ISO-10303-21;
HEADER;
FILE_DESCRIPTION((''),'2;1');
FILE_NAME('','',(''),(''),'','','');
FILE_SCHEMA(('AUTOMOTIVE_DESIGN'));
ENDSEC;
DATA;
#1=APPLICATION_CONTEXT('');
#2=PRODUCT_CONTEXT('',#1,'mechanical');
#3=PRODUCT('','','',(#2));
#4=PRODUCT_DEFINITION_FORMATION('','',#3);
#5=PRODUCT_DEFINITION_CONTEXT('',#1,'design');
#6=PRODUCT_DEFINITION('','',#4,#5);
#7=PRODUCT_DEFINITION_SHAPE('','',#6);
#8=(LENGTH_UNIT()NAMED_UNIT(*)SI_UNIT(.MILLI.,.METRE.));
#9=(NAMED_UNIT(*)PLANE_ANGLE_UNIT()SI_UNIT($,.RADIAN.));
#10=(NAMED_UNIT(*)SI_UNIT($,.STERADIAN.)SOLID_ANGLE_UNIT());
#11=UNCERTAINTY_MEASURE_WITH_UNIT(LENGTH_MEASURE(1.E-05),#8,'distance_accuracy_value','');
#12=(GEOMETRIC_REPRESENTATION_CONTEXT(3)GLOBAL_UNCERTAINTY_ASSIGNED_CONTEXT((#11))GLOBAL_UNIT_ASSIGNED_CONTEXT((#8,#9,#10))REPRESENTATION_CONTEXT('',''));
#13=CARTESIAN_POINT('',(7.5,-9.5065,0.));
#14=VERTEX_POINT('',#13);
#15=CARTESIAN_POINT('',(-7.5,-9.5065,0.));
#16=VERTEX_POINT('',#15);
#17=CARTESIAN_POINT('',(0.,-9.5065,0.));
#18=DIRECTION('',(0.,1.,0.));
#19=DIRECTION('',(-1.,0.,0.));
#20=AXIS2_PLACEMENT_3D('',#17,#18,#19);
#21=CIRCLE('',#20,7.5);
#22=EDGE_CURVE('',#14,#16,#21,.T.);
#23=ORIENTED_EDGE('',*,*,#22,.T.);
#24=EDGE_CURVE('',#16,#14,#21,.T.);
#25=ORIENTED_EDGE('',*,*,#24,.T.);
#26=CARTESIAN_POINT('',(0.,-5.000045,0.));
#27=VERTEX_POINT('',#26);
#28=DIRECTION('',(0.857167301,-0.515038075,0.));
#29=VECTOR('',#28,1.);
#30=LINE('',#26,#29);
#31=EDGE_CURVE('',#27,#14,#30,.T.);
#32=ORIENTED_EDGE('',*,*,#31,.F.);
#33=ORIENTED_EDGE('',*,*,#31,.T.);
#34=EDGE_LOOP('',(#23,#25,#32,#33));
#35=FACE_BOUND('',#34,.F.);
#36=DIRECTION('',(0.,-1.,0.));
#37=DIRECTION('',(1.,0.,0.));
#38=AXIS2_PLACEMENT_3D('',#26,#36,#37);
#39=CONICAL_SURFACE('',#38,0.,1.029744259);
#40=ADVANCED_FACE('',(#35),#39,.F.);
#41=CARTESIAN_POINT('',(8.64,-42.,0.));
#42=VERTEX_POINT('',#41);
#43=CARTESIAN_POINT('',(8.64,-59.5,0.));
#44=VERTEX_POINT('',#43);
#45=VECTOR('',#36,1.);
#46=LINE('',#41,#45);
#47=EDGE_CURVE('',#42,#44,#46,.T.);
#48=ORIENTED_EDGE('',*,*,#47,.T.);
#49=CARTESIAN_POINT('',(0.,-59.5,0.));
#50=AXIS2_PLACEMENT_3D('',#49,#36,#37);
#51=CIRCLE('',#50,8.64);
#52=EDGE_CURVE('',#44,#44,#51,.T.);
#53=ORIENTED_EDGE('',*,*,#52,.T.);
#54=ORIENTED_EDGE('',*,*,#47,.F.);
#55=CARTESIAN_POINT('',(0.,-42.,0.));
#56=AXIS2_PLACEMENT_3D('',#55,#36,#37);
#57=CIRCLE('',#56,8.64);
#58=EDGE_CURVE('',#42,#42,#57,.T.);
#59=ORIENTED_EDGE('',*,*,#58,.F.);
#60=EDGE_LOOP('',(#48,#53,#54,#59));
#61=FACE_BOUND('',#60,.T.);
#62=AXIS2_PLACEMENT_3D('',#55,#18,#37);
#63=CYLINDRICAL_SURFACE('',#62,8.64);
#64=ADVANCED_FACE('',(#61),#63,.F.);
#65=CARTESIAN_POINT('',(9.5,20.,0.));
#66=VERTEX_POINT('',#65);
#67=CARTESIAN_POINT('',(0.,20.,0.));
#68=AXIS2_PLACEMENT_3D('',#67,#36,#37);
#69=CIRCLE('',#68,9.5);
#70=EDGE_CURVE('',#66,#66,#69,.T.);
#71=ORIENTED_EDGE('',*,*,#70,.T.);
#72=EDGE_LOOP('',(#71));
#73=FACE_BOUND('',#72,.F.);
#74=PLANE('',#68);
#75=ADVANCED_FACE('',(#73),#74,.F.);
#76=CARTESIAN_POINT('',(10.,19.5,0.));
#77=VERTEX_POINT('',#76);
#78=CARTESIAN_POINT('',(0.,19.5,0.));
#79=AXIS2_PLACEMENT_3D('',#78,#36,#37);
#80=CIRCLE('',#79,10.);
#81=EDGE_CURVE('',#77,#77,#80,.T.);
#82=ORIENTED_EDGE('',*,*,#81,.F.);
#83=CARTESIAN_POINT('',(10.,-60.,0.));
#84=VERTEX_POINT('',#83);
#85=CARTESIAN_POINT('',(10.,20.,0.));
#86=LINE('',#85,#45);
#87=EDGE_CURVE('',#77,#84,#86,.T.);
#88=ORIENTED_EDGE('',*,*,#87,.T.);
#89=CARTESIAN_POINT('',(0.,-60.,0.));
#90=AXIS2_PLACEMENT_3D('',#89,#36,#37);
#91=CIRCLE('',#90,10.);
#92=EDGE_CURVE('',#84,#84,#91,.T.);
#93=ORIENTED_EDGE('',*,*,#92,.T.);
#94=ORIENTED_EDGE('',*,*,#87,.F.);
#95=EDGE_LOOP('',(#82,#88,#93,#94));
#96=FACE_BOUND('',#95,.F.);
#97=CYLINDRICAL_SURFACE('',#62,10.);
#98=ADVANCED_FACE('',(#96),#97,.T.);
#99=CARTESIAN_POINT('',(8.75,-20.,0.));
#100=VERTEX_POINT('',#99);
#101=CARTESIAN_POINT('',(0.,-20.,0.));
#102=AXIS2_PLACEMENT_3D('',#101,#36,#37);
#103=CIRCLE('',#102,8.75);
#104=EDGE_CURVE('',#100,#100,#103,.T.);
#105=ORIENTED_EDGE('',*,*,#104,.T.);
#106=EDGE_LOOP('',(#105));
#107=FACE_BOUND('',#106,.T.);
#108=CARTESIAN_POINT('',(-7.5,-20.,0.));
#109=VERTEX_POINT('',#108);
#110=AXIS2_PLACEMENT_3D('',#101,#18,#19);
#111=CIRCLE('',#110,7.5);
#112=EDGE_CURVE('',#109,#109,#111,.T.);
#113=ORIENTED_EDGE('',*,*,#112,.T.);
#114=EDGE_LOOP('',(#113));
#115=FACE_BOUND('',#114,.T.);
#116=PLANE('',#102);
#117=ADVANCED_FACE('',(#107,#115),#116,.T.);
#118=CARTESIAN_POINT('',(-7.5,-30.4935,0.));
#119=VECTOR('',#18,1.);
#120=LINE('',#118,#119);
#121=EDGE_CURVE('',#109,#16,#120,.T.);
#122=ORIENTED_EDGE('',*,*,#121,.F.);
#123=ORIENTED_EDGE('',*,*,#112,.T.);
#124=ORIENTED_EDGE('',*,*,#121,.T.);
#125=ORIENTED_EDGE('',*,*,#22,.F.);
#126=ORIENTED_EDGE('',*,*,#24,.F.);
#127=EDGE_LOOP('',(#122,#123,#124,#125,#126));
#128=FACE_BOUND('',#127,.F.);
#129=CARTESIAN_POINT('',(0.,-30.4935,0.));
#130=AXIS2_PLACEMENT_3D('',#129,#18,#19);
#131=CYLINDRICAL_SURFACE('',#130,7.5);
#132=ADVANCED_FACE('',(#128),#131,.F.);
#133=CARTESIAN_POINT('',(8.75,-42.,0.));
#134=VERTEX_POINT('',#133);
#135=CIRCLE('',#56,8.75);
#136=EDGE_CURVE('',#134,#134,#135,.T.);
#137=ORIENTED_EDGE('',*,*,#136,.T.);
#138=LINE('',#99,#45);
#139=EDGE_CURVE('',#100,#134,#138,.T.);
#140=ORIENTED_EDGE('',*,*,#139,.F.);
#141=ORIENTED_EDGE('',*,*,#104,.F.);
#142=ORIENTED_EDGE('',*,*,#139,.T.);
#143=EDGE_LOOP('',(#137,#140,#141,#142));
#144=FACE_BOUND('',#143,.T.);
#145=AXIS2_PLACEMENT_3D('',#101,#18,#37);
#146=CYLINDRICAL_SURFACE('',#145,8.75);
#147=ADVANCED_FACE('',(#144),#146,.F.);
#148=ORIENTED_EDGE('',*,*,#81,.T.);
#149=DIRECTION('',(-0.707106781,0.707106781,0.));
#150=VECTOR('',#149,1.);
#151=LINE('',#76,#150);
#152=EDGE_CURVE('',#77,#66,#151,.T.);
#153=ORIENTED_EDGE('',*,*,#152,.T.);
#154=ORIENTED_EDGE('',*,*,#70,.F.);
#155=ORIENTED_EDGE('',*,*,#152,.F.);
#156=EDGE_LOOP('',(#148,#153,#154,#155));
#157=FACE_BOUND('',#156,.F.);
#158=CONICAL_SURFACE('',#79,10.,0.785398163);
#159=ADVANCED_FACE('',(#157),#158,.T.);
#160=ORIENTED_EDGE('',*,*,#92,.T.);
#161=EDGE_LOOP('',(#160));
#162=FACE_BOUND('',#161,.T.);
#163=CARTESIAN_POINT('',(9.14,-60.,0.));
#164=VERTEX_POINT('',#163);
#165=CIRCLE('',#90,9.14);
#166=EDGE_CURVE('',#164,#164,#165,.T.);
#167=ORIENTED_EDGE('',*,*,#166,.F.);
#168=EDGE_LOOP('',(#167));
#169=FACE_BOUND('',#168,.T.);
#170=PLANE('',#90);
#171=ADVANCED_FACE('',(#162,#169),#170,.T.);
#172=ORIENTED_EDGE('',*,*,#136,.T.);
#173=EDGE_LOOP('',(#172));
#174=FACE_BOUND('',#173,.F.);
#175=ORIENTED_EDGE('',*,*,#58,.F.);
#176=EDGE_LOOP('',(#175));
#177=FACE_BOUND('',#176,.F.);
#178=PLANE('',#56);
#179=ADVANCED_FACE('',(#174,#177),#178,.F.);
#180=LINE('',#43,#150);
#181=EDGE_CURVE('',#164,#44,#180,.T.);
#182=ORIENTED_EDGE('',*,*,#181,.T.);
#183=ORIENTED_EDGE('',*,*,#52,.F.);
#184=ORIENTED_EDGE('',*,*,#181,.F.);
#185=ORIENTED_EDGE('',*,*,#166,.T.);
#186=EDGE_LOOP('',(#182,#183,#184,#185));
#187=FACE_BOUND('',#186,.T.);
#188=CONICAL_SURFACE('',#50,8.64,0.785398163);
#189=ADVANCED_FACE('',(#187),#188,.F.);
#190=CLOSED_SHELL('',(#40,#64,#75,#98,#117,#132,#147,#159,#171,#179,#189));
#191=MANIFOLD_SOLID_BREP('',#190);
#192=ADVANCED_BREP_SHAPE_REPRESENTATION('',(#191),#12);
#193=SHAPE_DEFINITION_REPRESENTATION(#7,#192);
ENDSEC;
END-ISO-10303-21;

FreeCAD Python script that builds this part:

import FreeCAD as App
import Part
import Sketcher

V = App.Vector


def edges_at(feature, points):
    """Names of the edges that pass closest to the given points."""
    edges = feature.Shape.Edges
    near = lambda p: min(range(len(edges)), key=lambda i: edges[i].distToShape(Part.Vertex(*p))[0])
    return sorted({f"Edge{near(p) + 1}" for p in points})

doc = App.newDocument("Part")
params = doc.addObject("Spreadsheet::Sheet", "Params")
for row, (alias, value) in enumerate([
    ("sketch1_diameter", "20 mm"),
    ("pad1_length", "40 mm"),
    ("sketch2_diameter", "15 mm"),
    ("hole_diameter", "15 mm"),
    ("hole_depth", "10.4935 mm"),
    ("sketch3_diameter", "20 mm"),
    ("sketch3_diameter2", "17.5 mm"),
    ("pad2_length", "22 mm"),
    ("sketch4_diameter", "20 mm"),
    ("sketch4_diameter2", "17.28 mm"),
    ("pad3_length", "18 mm"),
    ("chamfer_size", "0.5 mm"),
], start=1):
    params.set(f"A{row}", alias)
    params.set(f"B{row}", "=" + value)
    params.setAlias(f"B{row}", alias)

body = doc.addObject("PartDesign::Body", "Body")

# Sketch on XZ plane
sketch1 = doc.addObject("Sketcher::SketchObject", "Sketch")
body.addObject(sketch1)
sketch1.AttachmentSupport = (doc.XZ_Plane, [""])
sketch1.MapMode = "FlatFace"
sketch1.addGeometry(Part.Circle(V(0, 0, 0), V(0, 0, 1), 10), False)
sketch1.addConstraint([
    Sketcher.Constraint("Coincident", 0, 3, -1, 1),
    Sketcher.Constraint("Diameter", 0, 20.0),
])
sketch1.setExpression("Constraints[1]", "Params.sketch1_diameter")
pad1 = doc.addObject("PartDesign::Pad", "Pad")
body.addObject(pad1)
pad1.Profile = sketch1
pad1.setExpression("Length", "Params.pad1_length")
pad1.Midplane = True

# Sketch on XZ plane
sketch2 = doc.addObject("Sketcher::SketchObject", "Sketch001")
body.addObject(sketch2)
sketch2.AttachmentSupport = (doc.XZ_Plane, [""])
sketch2.MapMode = "FlatFace"
sketch2.AttachmentOffset = App.Placement(V(0, 0, 20), App.Rotation())
sketch2.addGeometry(Part.Circle(V(0, 0, 0), V(0, 0, 1), 8), False)
sketch2.addConstraint([
    Sketcher.Constraint("Coincident", 0, 3, -1, 1),
    Sketcher.Constraint("Diameter", 0, 15.0),
])
sketch2.setExpression("Constraints[1]", "Params.sketch2_diameter")
doc.recompute()
hole = doc.addObject("PartDesign::Hole", "Hole")
body.addObject(hole)
hole.Profile = sketch2
hole.ThreadType = "None"
hole.setExpression("Diameter", "Params.hole_diameter")
hole.DepthType = "Dimension"
hole.setExpression("Depth", "Params.hole_depth")
hole.DrillPoint = "Angled"
hole.DrillPointAngle = 118

# Sketch on XZ plane
sketch3 = doc.addObject("Sketcher::SketchObject", "Sketch002")
body.addObject(sketch3)
sketch3.AttachmentSupport = (doc.XZ_Plane, [""])
sketch3.MapMode = "FlatFace"
sketch3.AttachmentOffset = App.Placement(V(0, 0, 20), App.Rotation())
sketch3.addGeometry([
    Part.Circle(V(0, 0, 0), V(0, 0, 1), 10),
    Part.Circle(V(0, 0, 0), V(0, 0, 1), 9),
], False)
sketch3.addConstraint([
    Sketcher.Constraint("Coincident", 0, 3, -1, 1),
    Sketcher.Constraint("Coincident", 1, 3, -1, 1),
    Sketcher.Constraint("Diameter", 0, 20.0),
    Sketcher.Constraint("Diameter", 1, 17.5),
])
sketch3.setExpression("Constraints[2]", "Params.sketch3_diameter")
sketch3.setExpression("Constraints[3]", "Params.sketch3_diameter2")
pad2 = doc.addObject("PartDesign::Pad", "Pad001")
body.addObject(pad2)
pad2.Profile = sketch3
pad2.setExpression("Length", "Params.pad2_length")

# Sketch on XZ plane
sketch4 = doc.addObject("Sketcher::SketchObject", "Sketch003")
body.addObject(sketch4)
sketch4.AttachmentSupport = (doc.XZ_Plane, [""])
sketch4.MapMode = "FlatFace"
sketch4.AttachmentOffset = App.Placement(V(0, 0, 42), App.Rotation())
sketch4.addGeometry([
    Part.Circle(V(0, 0, 0), V(0, 0, 1), 10),
    Part.Circle(V(0, 0, 0), V(0, 0, 1), 9),
], False)
sketch4.addConstraint([
    Sketcher.Constraint("Coincident", 0, 3, -1, 1),
    Sketcher.Constraint("Coincident", 1, 3, -1, 1),
    Sketcher.Constraint("Diameter", 0, 20.0),
    Sketcher.Constraint("Diameter", 1, 17.28),
])
sketch4.setExpression("Constraints[2]", "Params.sketch4_diameter")
sketch4.setExpression("Constraints[3]", "Params.sketch4_diameter2")
pad3 = doc.addObject("PartDesign::Pad", "Pad002")
body.addObject(pad3)
pad3.Profile = sketch4
pad3.setExpression("Length", "Params.pad3_length")
doc.recompute()

chamfer = doc.addObject("PartDesign::Chamfer", "Chamfer")
body.addObject(chamfer)
chamfer.Base = (pad3, edges_at(pad3, [(-8.64, -60, 0), (-10, 20, 0)]))
chamfer.setExpression("Size", "Params.chamfer_size")

doc.recompute()
